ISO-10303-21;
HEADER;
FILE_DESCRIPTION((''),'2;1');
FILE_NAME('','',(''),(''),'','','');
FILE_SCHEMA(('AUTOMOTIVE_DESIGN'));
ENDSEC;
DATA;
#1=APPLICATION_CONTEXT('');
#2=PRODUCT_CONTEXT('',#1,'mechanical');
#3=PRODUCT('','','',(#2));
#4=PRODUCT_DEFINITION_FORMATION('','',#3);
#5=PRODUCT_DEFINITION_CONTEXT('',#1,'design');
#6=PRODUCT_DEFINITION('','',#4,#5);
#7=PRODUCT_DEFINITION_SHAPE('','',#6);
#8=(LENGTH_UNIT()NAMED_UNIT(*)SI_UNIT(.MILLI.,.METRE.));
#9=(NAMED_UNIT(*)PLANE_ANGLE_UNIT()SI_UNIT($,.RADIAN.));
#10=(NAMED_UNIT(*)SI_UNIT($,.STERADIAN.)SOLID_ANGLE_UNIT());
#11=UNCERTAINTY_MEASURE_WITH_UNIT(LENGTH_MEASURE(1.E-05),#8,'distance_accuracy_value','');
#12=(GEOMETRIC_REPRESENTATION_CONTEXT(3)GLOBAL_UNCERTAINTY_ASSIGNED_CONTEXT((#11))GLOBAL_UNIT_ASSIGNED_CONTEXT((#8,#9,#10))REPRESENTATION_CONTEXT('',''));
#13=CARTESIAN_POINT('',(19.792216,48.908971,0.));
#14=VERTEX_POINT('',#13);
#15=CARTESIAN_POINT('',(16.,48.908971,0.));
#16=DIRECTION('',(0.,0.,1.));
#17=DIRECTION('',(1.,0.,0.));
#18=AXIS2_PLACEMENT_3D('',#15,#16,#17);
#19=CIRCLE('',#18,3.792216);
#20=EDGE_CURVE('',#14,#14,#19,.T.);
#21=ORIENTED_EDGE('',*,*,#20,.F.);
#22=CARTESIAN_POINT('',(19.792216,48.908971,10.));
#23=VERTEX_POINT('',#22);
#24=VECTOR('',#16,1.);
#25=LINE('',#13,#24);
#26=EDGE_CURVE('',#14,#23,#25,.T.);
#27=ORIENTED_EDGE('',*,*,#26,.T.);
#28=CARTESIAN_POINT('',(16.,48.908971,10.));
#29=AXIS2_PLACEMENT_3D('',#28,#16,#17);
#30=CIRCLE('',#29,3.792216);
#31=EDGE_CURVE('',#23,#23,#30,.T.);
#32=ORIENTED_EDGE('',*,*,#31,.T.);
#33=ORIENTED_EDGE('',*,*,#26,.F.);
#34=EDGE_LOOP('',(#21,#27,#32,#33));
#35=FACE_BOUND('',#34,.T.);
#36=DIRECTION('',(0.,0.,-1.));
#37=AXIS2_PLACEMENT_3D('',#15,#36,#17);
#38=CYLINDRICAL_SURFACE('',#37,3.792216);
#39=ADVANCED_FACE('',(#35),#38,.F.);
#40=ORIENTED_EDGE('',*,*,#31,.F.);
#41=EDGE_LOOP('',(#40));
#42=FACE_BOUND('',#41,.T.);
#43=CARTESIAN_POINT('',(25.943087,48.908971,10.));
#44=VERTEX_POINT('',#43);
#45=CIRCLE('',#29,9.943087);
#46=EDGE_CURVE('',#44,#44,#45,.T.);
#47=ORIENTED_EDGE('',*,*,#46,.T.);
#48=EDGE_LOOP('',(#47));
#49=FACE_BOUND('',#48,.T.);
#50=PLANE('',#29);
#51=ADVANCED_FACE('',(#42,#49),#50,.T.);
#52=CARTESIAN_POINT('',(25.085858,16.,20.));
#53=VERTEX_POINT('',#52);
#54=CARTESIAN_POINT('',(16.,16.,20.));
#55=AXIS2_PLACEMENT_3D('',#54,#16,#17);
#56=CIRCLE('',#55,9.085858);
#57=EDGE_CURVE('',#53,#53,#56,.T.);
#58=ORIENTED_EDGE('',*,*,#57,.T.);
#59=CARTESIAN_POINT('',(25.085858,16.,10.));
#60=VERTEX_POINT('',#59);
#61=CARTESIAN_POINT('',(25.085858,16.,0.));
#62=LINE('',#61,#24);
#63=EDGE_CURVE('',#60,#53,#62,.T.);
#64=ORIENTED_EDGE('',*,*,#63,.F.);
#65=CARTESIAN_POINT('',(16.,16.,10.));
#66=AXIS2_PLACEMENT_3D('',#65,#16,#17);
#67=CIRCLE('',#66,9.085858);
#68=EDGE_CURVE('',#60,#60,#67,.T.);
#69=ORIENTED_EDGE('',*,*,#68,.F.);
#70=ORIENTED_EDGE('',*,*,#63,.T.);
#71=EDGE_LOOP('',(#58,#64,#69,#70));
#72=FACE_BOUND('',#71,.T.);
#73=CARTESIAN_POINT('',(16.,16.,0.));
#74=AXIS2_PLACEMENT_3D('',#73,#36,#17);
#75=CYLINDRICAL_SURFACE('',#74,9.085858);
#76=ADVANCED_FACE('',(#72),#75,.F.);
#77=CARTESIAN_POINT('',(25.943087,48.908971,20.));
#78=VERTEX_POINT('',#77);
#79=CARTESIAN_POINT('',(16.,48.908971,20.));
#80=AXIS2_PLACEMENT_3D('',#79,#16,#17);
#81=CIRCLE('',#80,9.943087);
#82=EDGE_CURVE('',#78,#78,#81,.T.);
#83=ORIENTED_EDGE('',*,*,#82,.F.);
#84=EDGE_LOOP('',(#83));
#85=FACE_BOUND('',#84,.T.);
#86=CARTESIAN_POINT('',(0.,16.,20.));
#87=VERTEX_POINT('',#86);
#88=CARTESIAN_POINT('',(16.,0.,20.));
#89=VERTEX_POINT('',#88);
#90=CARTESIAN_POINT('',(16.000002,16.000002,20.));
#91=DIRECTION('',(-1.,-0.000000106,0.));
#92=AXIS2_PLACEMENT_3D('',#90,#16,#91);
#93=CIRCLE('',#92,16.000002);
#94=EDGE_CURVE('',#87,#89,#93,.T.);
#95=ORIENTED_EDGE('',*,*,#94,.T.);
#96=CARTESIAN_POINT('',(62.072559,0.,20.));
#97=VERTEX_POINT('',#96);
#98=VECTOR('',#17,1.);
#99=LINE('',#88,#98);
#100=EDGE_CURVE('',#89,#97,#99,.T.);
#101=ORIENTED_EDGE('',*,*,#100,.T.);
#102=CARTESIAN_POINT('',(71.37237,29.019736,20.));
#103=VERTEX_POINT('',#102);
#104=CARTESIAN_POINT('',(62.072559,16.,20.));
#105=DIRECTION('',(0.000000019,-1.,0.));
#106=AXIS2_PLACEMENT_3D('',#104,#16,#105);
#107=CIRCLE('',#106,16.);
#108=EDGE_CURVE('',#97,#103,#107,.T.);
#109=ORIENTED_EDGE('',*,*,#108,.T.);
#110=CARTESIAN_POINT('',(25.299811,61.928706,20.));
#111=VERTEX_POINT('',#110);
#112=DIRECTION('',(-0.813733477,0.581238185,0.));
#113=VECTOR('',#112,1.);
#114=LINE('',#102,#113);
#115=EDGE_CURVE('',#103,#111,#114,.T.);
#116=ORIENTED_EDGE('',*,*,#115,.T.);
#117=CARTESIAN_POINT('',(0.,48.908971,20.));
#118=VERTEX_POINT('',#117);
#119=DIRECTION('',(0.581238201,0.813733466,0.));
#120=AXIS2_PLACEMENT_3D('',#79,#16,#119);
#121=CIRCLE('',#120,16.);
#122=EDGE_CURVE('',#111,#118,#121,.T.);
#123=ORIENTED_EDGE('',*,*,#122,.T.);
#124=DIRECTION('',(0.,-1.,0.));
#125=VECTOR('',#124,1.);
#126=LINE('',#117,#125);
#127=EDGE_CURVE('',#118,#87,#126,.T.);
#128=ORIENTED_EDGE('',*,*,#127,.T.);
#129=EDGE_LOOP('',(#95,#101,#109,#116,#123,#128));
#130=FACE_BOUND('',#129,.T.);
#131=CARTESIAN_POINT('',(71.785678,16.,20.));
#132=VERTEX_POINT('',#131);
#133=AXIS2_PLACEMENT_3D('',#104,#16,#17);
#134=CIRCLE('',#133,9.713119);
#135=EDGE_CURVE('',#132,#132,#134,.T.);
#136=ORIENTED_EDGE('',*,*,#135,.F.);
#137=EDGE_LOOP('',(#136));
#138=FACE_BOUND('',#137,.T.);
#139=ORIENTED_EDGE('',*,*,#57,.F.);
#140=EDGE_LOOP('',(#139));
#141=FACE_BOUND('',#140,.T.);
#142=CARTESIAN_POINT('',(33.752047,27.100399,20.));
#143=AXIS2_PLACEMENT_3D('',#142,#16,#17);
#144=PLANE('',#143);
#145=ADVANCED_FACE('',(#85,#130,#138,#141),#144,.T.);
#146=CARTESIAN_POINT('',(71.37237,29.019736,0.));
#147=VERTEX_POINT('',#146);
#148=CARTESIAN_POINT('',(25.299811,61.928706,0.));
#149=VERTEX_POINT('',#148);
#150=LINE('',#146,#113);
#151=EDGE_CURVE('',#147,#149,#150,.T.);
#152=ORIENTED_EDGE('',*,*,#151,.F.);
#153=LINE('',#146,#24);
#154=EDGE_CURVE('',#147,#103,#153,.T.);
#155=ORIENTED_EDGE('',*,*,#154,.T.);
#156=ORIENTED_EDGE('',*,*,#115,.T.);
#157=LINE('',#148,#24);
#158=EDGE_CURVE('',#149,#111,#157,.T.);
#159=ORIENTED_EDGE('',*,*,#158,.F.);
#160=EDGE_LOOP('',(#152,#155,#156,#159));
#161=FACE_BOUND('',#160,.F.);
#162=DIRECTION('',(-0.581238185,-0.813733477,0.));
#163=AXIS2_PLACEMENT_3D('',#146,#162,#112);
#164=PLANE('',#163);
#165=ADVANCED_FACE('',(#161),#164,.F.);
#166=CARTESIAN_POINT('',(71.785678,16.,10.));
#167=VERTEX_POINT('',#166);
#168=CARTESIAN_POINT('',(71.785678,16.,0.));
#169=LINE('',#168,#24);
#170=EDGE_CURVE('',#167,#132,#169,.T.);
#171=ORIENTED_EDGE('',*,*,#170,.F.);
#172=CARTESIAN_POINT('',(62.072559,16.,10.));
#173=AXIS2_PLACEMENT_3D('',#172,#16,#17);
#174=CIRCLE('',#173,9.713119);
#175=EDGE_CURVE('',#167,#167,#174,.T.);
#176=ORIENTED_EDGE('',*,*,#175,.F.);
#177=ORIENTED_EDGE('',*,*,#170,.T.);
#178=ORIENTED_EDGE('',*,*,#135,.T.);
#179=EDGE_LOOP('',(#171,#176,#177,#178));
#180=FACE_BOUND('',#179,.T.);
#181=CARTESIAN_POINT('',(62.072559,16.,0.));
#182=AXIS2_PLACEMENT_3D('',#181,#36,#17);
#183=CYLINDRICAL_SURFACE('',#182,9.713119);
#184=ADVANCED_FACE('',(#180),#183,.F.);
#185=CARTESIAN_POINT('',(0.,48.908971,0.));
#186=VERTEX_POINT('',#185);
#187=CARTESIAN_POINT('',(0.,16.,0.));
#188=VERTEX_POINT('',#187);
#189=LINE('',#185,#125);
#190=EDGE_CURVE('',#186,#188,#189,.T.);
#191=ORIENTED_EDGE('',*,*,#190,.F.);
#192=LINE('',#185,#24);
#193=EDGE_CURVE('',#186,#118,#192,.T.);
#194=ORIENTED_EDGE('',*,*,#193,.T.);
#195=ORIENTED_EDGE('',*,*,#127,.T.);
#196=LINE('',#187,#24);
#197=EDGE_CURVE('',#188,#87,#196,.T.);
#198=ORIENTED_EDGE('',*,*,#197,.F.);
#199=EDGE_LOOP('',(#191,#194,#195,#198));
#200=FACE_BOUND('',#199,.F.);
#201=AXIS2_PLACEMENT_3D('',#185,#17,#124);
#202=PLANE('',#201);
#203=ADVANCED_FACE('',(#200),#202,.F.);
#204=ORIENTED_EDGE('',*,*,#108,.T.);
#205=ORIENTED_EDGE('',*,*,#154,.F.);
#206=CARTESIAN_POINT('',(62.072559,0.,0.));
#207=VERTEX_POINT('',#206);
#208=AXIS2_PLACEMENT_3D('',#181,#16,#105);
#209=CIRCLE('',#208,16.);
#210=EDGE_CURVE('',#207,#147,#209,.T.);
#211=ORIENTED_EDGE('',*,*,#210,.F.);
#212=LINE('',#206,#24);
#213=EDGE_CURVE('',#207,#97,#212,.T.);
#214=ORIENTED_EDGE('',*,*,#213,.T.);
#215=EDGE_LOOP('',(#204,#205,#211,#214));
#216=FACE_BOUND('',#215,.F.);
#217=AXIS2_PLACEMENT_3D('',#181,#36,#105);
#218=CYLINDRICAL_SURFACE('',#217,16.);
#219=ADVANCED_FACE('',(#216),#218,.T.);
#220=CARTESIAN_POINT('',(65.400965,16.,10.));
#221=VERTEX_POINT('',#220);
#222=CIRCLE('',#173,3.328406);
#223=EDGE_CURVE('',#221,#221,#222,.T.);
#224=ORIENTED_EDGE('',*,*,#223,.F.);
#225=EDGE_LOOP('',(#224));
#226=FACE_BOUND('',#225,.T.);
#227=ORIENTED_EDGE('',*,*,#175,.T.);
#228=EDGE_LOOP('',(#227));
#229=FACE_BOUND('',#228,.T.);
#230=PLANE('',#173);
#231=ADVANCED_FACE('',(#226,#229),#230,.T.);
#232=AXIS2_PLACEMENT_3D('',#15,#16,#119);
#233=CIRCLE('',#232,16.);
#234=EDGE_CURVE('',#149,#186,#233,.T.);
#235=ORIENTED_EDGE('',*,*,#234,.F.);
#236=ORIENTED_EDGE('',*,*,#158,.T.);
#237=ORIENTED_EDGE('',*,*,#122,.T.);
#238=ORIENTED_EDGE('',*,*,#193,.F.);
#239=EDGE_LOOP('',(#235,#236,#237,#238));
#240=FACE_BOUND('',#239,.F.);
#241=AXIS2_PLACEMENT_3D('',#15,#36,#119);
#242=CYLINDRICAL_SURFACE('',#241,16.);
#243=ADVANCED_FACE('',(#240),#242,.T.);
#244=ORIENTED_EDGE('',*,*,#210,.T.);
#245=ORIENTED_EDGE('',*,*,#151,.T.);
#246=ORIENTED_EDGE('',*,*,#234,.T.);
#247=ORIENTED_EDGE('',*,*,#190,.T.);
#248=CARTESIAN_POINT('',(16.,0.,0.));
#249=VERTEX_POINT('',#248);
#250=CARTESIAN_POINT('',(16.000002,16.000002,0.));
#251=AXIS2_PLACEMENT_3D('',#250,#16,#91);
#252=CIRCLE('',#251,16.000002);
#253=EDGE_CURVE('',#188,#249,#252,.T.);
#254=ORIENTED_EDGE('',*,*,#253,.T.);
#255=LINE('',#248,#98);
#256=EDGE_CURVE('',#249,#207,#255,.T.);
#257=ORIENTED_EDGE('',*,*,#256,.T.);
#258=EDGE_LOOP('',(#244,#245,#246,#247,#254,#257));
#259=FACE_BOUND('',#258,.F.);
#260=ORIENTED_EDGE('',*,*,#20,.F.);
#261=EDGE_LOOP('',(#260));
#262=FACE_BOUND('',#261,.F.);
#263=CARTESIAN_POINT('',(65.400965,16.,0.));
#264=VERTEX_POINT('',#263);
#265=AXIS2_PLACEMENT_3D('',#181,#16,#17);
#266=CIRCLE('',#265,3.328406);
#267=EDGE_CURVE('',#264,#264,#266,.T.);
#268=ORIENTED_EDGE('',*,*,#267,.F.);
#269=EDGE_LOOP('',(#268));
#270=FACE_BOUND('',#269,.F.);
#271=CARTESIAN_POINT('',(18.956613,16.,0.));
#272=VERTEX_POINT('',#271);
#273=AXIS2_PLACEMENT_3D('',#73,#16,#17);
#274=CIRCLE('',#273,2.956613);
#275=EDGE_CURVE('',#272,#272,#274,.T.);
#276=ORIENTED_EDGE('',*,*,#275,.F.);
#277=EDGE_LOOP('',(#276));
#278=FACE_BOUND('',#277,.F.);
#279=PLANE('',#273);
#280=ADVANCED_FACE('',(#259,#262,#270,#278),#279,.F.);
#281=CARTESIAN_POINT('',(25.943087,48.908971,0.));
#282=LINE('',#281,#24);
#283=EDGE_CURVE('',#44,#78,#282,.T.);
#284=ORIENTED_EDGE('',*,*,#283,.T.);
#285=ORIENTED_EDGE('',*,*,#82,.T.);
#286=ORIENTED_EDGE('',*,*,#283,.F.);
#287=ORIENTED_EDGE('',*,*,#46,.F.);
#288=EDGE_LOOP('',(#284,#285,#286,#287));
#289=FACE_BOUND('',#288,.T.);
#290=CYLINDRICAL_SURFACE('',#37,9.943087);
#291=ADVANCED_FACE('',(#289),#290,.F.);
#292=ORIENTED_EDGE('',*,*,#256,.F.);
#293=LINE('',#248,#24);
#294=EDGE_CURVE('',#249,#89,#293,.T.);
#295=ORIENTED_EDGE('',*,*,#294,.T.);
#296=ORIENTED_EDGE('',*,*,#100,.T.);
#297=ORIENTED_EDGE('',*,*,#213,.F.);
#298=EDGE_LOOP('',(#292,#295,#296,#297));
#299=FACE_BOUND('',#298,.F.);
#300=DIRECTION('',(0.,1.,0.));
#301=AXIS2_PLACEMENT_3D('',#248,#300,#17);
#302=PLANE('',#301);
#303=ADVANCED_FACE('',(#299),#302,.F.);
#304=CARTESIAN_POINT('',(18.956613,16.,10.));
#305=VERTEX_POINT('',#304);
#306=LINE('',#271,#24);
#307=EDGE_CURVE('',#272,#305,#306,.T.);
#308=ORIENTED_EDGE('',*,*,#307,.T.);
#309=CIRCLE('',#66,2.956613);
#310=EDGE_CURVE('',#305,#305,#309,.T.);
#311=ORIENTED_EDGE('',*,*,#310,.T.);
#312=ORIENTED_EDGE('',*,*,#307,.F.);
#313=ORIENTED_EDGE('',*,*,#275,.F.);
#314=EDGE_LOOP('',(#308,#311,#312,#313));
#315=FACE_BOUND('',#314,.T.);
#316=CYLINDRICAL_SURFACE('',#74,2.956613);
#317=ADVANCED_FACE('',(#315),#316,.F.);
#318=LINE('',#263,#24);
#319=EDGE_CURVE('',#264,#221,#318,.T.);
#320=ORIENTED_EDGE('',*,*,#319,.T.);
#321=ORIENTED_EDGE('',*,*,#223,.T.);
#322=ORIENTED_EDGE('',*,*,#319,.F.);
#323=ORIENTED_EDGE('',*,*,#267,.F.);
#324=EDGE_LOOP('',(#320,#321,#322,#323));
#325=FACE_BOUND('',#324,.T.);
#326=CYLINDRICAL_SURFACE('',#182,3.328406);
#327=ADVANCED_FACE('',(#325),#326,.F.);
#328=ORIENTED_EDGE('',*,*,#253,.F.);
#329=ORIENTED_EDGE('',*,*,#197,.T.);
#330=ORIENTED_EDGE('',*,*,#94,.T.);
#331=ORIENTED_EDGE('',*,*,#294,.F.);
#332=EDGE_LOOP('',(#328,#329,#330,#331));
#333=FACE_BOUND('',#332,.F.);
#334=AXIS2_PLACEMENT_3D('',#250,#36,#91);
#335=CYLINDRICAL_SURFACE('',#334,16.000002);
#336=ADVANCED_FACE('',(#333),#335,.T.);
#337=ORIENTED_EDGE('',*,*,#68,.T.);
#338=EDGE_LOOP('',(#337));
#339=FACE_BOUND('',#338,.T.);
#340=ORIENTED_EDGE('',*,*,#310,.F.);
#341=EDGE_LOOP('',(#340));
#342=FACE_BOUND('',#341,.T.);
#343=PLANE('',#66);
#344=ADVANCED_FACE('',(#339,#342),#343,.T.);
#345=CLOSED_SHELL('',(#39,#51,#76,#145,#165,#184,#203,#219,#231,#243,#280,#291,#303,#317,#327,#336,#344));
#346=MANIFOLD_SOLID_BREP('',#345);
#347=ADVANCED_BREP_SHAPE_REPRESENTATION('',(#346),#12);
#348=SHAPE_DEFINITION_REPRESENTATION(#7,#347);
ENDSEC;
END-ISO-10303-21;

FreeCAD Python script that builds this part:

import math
import FreeCAD as App
import Part
import Sketcher

V = App.Vector

doc = App.newDocument("Part")
params = doc.addObject("Spreadsheet::Sheet", "Params")
for row, (alias, value) in enumerate([
    ("sketch1_radius", "16.000002 mm"),
    ("pad1_length", "20 mm"),
    ("pad2_length", "10 mm"),
], start=1):
    params.set(f"A{row}", alias)
    params.set(f"B{row}", "=" + value)
    params.setAlias(f"B{row}", alias)

body = doc.addObject("PartDesign::Body", "Body")

# Sketch on XY plane
sketch1 = doc.addObject("Sketcher::SketchObject", "Sketch")
body.addObject(sketch1)
sketch1.AttachmentSupport = (doc.XY_Plane, [""])
sketch1.MapMode = "FlatFace"
sketch1.addGeometry([
    Part.ArcOfCircle(Part.Circle(V(16, 16, 0), V(0, 0, 1), 16), math.radians(-180), math.radians(-90)),  # 0
    Part.LineSegment(V(16, 0, 0), V(62, 0, 0)),  # 1
    Part.ArcOfCircle(Part.Circle(V(62, 16, 0), V(0, 0, 1), 16), math.radians(-90), math.radians(54)),  # 2
    Part.LineSegment(V(71, 29, 0), V(25, 62, 0)),  # 3
    Part.ArcOfCircle(Part.Circle(V(16, 49, 0), V(0, 0, 1), 16), math.radians(54), math.radians(180)),  # 4
    Part.LineSegment(V(0, 49, 0), V(0, 16, 0)),  # 5
    Part.Circle(V(16, 16, 0), V(0, 0, 1), 9),  # 6
    Part.Circle(V(62, 16, 0), V(0, 0, 1), 10),  # 7
    Part.Circle(V(16, 49, 0), V(0, 0, 1), 10),  # 8
], False)
sketch1.addConstraint([
    Sketcher.Constraint("Tangent", 0, 2, 1, 1),
    Sketcher.Constraint("Tangent", 1, 2, 2, 1),
    Sketcher.Constraint("Tangent", 2, 2, 3, 1),
    Sketcher.Constraint("Tangent", 3, 2, 4, 1),
    Sketcher.Constraint("Tangent", 4, 2, 5, 1),
    Sketcher.Constraint("Tangent", 5, 2, 0, 1),
    Sketcher.Constraint("Horizontal", 1),
    Sketcher.Constraint("Vertical", 5),
    Sketcher.Constraint("Coincident", 6, 3, 0, 3),
    Sketcher.Constraint("Coincident", 7, 3, 2, 3),
    Sketcher.Constraint("Coincident", 8, 3, 4, 3),
    Sketcher.Constraint("Equal", 0, 2),
    Sketcher.Constraint("Equal", 2, 4),
    Sketcher.Constraint("PointOnObject", 0, 2, -1),
    Sketcher.Constraint("PointOnObject", 4, 2, -2),
    Sketcher.Constraint("Radius", 0, 16.000002),
    Sketcher.Constraint("Diameter", 7, 19.426238),
    Sketcher.Constraint("Diameter", 6, 18.171716),
    Sketcher.Constraint("Diameter", 8, 19.886174),
    Sketcher.Constraint("DistanceX", 1, 1, 1, 2, 46.072559),
    Sketcher.Constraint("DistanceY", 5, 2, 5, 1, 32.908971),
])
sketch1.setExpression("Constraints[15]", "Params.sketch1_radius")
pad1 = doc.addObject("PartDesign::Pad", "Pad")
body.addObject(pad1)
pad1.Profile = sketch1
pad1.setExpression("Length", "Params.pad1_length")

# Sketch on XY plane
sketch2 = doc.addObject("Sketcher::SketchObject", "Sketch001")
body.addObject(sketch2)
sketch2.AttachmentSupport = (doc.XY_Plane, [""])
sketch2.MapMode = "FlatFace"
sketch2.addGeometry([
    Part.Circle(V(16, 16, 0), V(0, 0, 1), 9.1),  # 0
    Part.Circle(V(16, 16, 0), V(0, 0, 1), 3),  # 1
    Part.Circle(V(16, 48.9, 0), V(0, 0, 1), 9.9),  # 2
    Part.Circle(V(16, 48.9, 0), V(0, 0, 1), 3.8),  # 3
    Part.Circle(V(62.1, 16, 0), V(0, 0, 1), 9.7),  # 4
    Part.Circle(V(62.1, 16, 0), V(0, 0, 1), 3.3),  # 5
], False)
sketch2.addConstraint([
    Sketcher.Constraint("Coincident", 1, 3, 0, 3),
    Sketcher.Constraint("Coincident", 3, 3, 2, 3),
    Sketcher.Constraint("Coincident", 5, 3, 4, 3),
    Sketcher.Constraint("Horizontal", 1, 3, 4, 3),
    Sketcher.Constraint("Vertical", 1, 3, 2, 3),
    Sketcher.Constraint("DistanceX", -1, 1, 0, 3, 16.0),
    Sketcher.Constraint("DistanceY", -1, 1, 0, 3, 16.0),
    Sketcher.Constraint("Diameter", 3, 7.584432),
    Sketcher.Constraint("Diameter", 4, 19.426238),
    Sketcher.Constraint("Diameter", 0, 18.171716),
    Sketcher.Constraint("Diameter", 1, 5.913226),
    Sketcher.Constraint("Diameter", 2, 19.886174),
    Sketcher.Constraint("Diameter", 5, 6.656812),
    Sketcher.Constraint("DistanceY", -1, 1, 2, 3, 48.908971),
    Sketcher.Constraint("DistanceX", -1, 1, 4, 3, 62.072559),
])
pad2 = doc.addObject("PartDesign::Pad", "Pad001")
body.addObject(pad2)
pad2.Profile = sketch2
pad2.setExpression("Length", "Params.pad2_length")

doc.recompute()
